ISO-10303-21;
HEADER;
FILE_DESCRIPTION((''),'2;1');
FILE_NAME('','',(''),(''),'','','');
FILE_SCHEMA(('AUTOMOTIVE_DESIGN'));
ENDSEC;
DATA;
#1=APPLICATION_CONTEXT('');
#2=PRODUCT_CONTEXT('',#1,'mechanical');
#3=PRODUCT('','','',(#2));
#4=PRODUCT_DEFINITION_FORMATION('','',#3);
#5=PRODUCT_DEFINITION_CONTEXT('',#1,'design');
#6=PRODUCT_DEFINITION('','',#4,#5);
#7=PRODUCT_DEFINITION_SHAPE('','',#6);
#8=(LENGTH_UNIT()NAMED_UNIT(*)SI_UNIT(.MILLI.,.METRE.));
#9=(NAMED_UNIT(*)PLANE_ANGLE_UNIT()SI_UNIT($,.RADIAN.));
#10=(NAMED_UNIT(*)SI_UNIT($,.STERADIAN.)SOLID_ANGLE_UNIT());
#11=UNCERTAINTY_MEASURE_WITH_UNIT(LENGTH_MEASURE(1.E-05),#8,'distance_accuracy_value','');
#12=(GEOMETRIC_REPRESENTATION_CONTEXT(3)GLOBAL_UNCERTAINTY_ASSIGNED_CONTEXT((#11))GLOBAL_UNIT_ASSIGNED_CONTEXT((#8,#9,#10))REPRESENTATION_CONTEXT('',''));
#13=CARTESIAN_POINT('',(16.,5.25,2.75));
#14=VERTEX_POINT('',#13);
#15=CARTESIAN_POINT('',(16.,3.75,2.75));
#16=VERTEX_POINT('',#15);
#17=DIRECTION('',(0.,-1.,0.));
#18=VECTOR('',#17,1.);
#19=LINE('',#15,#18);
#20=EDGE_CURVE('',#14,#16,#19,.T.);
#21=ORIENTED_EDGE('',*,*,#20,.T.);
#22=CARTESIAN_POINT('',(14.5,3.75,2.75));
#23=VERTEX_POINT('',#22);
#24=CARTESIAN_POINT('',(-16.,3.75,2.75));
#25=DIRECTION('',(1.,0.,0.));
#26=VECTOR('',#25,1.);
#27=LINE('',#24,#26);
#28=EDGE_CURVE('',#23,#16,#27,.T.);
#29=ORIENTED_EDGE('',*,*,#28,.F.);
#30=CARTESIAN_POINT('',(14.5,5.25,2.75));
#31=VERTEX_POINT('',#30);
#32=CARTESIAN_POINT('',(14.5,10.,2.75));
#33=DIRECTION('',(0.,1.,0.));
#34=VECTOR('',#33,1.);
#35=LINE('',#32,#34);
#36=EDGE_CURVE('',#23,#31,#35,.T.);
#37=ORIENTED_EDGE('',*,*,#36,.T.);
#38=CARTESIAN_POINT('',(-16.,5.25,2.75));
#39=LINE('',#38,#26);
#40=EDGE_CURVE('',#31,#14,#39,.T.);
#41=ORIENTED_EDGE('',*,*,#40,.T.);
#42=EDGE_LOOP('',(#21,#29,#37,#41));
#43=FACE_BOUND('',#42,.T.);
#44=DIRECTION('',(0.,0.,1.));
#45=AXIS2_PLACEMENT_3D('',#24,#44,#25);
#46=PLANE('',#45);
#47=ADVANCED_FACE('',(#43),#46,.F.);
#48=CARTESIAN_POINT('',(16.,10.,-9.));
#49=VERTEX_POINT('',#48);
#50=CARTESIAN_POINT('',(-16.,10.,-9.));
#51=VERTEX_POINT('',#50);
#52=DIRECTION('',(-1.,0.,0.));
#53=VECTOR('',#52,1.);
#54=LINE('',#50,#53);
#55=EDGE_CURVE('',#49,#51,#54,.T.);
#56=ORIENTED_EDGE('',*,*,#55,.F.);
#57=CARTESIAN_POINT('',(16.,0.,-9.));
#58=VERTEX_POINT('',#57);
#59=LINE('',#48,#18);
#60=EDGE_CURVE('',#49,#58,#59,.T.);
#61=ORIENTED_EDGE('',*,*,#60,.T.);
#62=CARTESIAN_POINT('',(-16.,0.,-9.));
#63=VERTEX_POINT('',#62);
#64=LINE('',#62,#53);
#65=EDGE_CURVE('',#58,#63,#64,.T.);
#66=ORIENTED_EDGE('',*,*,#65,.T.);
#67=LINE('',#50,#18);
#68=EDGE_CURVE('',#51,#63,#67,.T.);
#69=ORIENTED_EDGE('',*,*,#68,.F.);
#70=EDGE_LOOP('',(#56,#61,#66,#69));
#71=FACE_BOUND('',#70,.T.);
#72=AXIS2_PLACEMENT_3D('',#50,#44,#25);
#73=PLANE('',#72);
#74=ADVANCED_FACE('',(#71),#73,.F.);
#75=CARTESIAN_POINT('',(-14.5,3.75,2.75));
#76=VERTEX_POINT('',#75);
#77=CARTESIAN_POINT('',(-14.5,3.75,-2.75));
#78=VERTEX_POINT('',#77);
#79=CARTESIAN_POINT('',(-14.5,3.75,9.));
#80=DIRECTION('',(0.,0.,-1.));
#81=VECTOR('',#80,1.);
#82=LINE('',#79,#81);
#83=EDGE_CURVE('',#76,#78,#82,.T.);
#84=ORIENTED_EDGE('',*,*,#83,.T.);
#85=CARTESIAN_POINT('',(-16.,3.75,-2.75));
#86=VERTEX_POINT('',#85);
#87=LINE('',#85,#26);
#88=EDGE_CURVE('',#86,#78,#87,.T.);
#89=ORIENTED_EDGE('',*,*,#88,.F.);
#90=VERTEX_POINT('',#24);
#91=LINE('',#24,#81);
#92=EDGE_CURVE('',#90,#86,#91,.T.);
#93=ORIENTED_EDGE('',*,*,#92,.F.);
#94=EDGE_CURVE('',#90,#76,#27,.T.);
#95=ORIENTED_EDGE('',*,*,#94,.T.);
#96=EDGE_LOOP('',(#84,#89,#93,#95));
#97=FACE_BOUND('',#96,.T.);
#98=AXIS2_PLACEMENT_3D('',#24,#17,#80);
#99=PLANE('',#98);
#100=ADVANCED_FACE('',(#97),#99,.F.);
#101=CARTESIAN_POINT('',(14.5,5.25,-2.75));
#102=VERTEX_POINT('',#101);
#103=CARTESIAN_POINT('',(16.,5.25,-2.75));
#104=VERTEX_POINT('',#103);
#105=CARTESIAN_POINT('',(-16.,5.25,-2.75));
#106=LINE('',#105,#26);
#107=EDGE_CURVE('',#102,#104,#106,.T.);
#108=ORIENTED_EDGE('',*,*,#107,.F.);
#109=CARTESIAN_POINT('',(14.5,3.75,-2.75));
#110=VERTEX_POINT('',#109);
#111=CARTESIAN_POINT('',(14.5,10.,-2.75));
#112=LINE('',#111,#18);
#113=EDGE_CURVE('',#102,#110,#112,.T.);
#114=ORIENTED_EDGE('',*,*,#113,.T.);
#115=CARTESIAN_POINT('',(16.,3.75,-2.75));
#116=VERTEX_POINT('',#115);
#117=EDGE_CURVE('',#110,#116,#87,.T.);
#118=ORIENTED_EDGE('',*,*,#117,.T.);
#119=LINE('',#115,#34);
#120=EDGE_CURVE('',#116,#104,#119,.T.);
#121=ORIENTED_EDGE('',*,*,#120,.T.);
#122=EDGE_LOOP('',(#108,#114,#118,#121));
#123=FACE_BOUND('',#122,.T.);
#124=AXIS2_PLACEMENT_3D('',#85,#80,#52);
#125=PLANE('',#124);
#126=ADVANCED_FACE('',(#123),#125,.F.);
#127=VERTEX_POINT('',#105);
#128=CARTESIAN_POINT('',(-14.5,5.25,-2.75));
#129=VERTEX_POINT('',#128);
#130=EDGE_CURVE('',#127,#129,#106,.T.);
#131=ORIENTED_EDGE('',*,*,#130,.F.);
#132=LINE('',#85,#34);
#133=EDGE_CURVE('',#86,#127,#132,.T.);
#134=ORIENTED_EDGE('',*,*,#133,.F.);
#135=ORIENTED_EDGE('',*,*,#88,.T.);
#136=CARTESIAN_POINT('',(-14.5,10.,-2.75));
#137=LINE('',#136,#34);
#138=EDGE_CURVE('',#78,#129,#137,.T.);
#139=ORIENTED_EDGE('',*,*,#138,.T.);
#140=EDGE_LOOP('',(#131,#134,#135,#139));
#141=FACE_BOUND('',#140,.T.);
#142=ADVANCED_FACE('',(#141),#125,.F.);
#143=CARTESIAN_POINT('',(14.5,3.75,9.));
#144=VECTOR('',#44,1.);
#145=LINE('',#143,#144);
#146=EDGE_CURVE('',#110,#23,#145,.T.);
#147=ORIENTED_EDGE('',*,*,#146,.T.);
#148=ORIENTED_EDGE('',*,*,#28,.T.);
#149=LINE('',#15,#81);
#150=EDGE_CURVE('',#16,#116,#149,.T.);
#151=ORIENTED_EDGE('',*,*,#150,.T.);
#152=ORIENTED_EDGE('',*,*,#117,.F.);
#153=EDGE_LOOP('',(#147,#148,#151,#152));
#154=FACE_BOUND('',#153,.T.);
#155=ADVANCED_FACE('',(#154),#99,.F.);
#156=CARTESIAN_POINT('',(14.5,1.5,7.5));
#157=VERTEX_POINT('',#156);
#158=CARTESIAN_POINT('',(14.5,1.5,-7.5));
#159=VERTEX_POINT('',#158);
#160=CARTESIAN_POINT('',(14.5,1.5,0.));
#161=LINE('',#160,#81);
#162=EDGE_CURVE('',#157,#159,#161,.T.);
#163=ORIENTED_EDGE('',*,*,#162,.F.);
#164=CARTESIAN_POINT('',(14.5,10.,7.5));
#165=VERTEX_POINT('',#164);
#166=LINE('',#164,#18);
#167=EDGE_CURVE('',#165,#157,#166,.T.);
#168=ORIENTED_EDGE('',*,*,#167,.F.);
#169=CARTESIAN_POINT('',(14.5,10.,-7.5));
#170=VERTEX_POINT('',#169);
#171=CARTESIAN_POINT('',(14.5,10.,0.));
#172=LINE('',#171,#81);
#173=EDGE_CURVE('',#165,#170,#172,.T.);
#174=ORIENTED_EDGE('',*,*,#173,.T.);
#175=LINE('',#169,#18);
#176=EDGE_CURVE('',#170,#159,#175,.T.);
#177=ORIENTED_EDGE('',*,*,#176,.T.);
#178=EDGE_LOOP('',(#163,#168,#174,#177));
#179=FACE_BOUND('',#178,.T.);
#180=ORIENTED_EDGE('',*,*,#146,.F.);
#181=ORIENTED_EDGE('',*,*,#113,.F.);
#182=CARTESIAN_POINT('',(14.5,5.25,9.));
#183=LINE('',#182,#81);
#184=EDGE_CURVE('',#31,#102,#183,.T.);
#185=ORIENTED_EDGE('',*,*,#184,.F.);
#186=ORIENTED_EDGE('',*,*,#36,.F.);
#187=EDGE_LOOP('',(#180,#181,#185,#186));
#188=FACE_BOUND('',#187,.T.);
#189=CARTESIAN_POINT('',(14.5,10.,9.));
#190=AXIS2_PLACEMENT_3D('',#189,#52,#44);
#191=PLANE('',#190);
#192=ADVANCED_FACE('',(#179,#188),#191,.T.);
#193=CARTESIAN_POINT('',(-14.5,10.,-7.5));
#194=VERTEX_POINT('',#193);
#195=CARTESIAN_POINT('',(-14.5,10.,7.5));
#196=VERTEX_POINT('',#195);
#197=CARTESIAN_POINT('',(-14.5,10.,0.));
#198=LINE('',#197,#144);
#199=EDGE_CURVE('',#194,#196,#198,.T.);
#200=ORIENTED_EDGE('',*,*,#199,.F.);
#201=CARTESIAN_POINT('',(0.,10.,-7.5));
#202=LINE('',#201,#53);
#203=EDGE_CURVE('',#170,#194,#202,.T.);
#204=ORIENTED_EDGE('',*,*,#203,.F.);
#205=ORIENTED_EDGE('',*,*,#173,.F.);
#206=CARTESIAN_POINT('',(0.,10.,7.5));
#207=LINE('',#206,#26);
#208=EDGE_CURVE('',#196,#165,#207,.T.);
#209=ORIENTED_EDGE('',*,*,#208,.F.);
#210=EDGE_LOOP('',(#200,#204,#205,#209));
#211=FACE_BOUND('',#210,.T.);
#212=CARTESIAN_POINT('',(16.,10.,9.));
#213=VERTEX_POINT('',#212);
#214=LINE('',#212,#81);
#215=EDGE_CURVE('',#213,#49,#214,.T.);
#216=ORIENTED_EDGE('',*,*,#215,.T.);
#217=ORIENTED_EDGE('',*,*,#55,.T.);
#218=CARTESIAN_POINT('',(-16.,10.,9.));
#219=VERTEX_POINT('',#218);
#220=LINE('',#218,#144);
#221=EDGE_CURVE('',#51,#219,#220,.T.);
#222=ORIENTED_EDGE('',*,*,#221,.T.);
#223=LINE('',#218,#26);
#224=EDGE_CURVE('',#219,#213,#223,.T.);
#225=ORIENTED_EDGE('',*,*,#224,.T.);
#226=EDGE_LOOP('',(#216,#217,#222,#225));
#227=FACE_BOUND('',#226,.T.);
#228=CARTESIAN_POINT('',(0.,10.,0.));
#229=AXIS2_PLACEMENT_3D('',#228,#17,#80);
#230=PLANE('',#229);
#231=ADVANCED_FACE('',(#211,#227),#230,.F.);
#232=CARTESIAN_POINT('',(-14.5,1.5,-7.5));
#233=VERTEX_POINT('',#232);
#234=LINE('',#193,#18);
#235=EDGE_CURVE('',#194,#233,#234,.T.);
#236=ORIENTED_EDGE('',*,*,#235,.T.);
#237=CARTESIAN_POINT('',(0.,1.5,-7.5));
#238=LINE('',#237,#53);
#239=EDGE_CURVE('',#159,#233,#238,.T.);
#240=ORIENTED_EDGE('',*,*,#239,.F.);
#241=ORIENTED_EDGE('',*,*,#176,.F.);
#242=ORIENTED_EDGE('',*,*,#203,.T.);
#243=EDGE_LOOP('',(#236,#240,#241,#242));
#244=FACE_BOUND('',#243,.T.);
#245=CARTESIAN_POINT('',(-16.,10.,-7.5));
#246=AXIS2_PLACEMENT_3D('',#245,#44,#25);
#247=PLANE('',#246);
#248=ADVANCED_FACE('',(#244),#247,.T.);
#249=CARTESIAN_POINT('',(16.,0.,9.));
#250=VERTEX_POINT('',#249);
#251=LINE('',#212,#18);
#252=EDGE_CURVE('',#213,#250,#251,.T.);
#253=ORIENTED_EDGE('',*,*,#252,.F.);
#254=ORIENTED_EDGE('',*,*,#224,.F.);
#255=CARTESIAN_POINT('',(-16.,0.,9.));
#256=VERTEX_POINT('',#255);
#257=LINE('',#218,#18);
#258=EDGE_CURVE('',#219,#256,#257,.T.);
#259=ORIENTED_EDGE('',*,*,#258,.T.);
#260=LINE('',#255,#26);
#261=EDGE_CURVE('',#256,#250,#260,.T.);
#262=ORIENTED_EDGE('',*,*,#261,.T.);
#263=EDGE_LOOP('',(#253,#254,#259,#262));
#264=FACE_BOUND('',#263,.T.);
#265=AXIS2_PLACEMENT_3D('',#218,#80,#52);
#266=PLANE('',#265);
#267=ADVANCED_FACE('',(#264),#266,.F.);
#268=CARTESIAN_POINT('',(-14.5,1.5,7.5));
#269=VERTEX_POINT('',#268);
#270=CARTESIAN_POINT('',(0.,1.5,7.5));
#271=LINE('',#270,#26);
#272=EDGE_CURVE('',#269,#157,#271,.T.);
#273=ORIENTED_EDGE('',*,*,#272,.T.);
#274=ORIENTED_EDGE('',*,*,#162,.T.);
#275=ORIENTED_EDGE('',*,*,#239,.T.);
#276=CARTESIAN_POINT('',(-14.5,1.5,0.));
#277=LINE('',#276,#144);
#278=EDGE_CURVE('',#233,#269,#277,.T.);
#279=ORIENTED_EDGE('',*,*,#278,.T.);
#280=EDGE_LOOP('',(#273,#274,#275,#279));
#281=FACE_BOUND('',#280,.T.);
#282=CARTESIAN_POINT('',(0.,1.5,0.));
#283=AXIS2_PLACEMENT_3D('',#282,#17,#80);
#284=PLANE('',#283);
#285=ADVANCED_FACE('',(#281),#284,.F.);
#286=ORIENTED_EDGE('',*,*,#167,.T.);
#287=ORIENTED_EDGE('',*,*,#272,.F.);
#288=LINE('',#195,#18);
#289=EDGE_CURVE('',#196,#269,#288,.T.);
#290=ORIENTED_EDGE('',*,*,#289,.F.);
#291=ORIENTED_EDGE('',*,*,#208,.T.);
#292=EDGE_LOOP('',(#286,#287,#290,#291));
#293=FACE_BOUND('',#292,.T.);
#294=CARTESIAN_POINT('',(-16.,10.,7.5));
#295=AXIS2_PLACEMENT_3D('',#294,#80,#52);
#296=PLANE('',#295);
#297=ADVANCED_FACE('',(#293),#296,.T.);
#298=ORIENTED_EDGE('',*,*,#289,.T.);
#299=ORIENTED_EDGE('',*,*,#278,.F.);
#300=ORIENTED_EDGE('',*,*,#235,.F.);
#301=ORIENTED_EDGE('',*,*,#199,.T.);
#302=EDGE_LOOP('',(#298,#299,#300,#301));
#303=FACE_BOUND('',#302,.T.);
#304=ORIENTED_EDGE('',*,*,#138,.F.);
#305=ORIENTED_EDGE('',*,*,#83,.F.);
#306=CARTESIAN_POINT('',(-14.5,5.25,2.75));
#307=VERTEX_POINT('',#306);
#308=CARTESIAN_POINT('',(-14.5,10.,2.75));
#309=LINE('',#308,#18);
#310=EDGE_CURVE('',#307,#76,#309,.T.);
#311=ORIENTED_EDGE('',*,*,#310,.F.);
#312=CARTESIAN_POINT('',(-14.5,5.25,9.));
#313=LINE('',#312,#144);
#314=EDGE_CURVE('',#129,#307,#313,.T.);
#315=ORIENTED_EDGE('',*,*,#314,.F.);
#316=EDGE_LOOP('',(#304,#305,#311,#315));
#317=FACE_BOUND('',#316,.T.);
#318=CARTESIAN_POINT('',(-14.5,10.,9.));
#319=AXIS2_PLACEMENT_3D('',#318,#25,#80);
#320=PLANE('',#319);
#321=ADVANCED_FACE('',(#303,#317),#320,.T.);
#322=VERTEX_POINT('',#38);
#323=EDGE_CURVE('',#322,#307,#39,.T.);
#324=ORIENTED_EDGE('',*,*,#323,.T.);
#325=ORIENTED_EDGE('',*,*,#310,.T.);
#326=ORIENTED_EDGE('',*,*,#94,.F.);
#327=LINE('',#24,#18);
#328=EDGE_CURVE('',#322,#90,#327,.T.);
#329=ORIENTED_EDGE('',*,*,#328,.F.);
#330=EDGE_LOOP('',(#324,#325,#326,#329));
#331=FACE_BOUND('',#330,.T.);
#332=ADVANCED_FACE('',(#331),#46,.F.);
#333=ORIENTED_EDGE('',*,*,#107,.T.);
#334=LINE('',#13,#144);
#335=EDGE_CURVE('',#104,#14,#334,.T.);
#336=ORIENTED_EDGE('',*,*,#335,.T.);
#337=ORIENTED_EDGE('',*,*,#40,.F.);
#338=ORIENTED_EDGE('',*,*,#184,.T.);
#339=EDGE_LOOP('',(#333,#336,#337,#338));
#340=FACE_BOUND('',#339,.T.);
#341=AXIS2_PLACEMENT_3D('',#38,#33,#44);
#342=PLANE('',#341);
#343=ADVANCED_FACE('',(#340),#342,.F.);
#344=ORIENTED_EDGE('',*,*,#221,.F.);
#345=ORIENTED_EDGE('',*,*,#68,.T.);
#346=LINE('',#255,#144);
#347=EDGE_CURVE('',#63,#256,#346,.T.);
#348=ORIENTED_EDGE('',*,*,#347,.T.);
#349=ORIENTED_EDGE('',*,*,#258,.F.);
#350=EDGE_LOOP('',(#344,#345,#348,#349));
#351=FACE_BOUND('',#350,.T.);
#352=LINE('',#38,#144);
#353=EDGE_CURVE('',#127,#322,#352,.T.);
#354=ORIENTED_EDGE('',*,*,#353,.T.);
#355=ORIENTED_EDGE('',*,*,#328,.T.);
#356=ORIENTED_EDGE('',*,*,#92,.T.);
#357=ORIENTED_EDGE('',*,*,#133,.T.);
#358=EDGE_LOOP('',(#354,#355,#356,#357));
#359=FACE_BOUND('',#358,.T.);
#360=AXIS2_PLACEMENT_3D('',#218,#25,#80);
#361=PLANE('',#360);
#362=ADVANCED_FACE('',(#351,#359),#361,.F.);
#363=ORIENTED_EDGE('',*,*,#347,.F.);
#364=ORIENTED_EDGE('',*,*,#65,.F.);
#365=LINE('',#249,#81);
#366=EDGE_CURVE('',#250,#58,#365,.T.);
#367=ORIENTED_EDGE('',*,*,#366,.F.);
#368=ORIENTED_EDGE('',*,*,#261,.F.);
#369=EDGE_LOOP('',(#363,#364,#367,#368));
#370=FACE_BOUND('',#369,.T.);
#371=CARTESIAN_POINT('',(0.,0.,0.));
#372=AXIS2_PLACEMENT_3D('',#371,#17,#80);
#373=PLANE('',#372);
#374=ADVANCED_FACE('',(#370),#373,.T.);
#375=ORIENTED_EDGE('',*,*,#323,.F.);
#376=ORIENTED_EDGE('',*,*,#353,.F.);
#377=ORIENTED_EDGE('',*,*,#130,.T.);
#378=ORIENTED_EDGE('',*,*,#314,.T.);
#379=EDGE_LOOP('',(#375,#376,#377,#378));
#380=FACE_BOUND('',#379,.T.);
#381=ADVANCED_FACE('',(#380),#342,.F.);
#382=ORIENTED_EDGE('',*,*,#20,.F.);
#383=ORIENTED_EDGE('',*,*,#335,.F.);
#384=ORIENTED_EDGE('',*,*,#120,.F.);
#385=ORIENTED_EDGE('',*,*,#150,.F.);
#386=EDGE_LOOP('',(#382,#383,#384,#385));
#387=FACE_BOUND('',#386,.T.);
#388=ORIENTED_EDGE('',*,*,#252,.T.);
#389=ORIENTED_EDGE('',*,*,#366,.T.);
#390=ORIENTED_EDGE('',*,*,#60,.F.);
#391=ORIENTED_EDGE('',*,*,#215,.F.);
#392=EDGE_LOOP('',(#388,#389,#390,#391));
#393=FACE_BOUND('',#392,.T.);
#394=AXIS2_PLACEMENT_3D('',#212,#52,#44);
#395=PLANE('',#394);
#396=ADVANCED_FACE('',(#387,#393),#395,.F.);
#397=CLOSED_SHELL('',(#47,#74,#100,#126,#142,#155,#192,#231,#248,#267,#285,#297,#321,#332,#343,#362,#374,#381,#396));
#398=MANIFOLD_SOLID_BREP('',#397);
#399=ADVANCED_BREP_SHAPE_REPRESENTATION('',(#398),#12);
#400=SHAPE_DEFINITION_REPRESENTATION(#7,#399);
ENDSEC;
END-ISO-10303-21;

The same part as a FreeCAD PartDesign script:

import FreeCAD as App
import Part
import Sketcher
from FreeCAD import Vector


def faces_at(feature, points):
    """Names of the faces that lie closest to the given points."""
    faces = feature.Shape.Faces
    near = lambda p: min(range(len(faces)), key=lambda i: faces[i].distToShape(Part.Vertex(*p))[0])
    return sorted({f"Face{near(p) + 1}" for p in points})


def add_polygon(sketch, points):
    """Adds a closed chain of lines whose ends are joined by coincident constraints."""
    first, n = sketch.GeometryCount, len(points)
    for a, b in zip(points, points[1:] + points[:1]):
        sketch.addGeometry(Part.LineSegment(App.Vector(*a, 0), App.Vector(*b, 0)), False)
    for i in range(n):
        sketch.addConstraint(Sketcher.Constraint("Coincident", first + i, 2, first + (i + 1) % n, 1))

doc = App.newDocument("Part")
body = doc.addObject("PartDesign::Body", "Body")

# Sketch on XZ plane
sketch1 = body.newObject("Sketcher::SketchObject", "Sketch")
sketch1.AttachmentSupport = (doc.getObject("XZ_Plane"), [""])
sketch1.MapMode = "FlatFace"
add_polygon(sketch1, [(-16, -9), (-16, 9), (16, 9), (16, -9)])  # lines 0-3
sketch1.addConstraint(Sketcher.Constraint("Vertical", 0))
sketch1.addConstraint(Sketcher.Constraint("Horizontal", 1))
sketch1.addConstraint(Sketcher.Constraint("Vertical", 2))
sketch1.addConstraint(Sketcher.Constraint("Horizontal", 3))
sketch1.addConstraint(Sketcher.Constraint("Symmetric", 0, 2, 2, 2, -1, 1))
sketch1.addConstraint(Sketcher.Constraint("DistanceX", 1, 1, 1, 2, 32.0))
sketch1.addConstraint(Sketcher.Constraint("DistanceY", 0, 1, 0, 2, 18.0))
pad1 = body.newObject("PartDesign::Pad", "Pad")
pad1.Profile = sketch1
pad1.Length = 10
pad1.Reversed = True
doc.recompute()

thickness = body.newObject("PartDesign::Thickness", "Thickness")
thickness.Base = (pad1, faces_at(pad1, [(0, 10, 0)]))
thickness.Value = 1.5
thickness.Reversed = True
thickness.Join = "Intersection"

# Sketch on YZ plane
sketch2 = body.newObject("Sketcher::SketchObject", "Sketch001")
sketch2.AttachmentSupport = (doc.getObject("YZ_Plane"), [""])
sketch2.MapMode = "FlatFace"
sketch2.AttachmentOffset = App.Placement(Vector(0, 0, 16), App.Rotation())
add_polygon(sketch2, [(5.25, 2.75), (3.75, 2.75), (3.75, -2.75), (5.25, -2.75)])  # lines 0-3
sketch2.addConstraint(Sketcher.Constraint("Horizontal", 0))
sketch2.addConstraint(Sketcher.Constraint("Vertical", 1))
sketch2.addConstraint(Sketcher.Constraint("Horizontal", 2))
sketch2.addConstraint(Sketcher.Constraint("Vertical", 3))
sketch2.addConstraint(Sketcher.Constraint("DistanceX", 0, 2, 0, 1, 1.5))
sketch2.addConstraint(Sketcher.Constraint("DistanceY", 1, 2, 1, 1, 5.5))
sketch2.addConstraint(Sketcher.Constraint("DistanceX", -1, 1, 0, 2, 3.75))
sketch2.addConstraint(Sketcher.Constraint("DistanceY", -1, 1, 0, 2, 2.75))
pocket1 = body.newObject("PartDesign::Pocket", "Pocket")
pocket1.Profile = sketch2
pocket1.Type = "ThroughAll"

doc.recompute()
